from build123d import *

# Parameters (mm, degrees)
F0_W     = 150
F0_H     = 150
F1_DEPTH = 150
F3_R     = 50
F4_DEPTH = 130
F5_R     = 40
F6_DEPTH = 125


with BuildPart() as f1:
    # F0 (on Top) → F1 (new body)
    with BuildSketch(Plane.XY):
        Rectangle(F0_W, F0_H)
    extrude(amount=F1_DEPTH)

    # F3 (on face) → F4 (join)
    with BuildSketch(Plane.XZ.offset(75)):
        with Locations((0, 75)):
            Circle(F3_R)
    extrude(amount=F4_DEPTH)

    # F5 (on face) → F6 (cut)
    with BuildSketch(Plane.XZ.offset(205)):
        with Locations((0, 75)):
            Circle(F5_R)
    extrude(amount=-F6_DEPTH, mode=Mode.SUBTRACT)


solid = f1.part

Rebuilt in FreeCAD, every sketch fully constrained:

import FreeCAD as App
import Part
import Sketcher

V = App.Vector


def add_polygon(sketch, points):
    """Adds a closed chain of lines whose ends are joined by coincident constraints."""
    first, n = sketch.GeometryCount, len(points)
    for a, b in zip(points, points[1:] + points[:1]):
        sketch.addGeometry(Part.LineSegment(App.Vector(*a, 0), App.Vector(*b, 0)), False)
    for i in range(n):
        sketch.addConstraint(Sketcher.Constraint("Coincident", first + i, 2, first + (i + 1) % n, 1))

doc = App.newDocument("Part")
body = doc.addObject("PartDesign::Body", "Body")

# Sketch on XY plane
sketch1 = body.newObject("Sketcher::SketchObject", "Sketch")
sketch1.AttachmentSupport = (doc.getObject("XY_Plane"), [""])
sketch1.MapMode = "FlatFace"
add_polygon(sketch1, [(-75, 75), (-75, -75), (75, -75), (75, 75)])  # lines 0-3
sketch1.addConstraint([
    Sketcher.Constraint("Vertical", 0),
    Sketcher.Constraint("Horizontal", 1),
    Sketcher.Constraint("Vertical", 2),
    Sketcher.Constraint("Horizontal", 3),
    Sketcher.Constraint("Symmetric", 0, 2, 2, 2, -1, 1),
    Sketcher.Constraint("Equal", 3, 0),
    Sketcher.Constraint("DistanceX", 1, 1, 1, 2, 150.0),
])
pad1 = body.newObject("PartDesign::Pad", "Pad")
pad1.Profile = sketch1
pad1.Length = 150

# Sketch on XZ plane
sketch2 = body.newObject("Sketcher::SketchObject", "Sketch001")
sketch2.AttachmentSupport = (doc.getObject("XZ_Plane"), [""])
sketch2.MapMode = "FlatFace"
sketch2.AttachmentOffset = App.Placement(V(0, 0, 75), App.Rotation())
sketch2.addGeometry(Part.Circle(V(0, 75, 0), V(0, 0, 1), 50), False)
sketch2.addConstraint([
    Sketcher.Constraint("PointOnObject", 0, 3, -2),
    Sketcher.Constraint("Diameter", 0, 100.0),
    Sketcher.Constraint("DistanceY", -1, 1, 0, 3, 75.0),
])
pad2 = body.newObject("PartDesign::Pad", "Pad001")
pad2.Profile = sketch2
pad2.Length = 130

# Sketch on XZ plane
sketch3 = body.newObject("Sketcher::SketchObject", "Sketch002")
sketch3.AttachmentSupport = (doc.getObject("XZ_Plane"), [""])
sketch3.MapMode = "FlatFace"
sketch3.AttachmentOffset = App.Placement(V(0, 0, 205), App.Rotation())
sketch3.addGeometry(Part.Circle(V(0, 75, 0), V(0, 0, 1), 40), False)
sketch3.addConstraint([
    Sketcher.Constraint("PointOnObject", 0, 3, -2),
    Sketcher.Constraint("Diameter", 0, 80.0),
    Sketcher.Constraint("DistanceY", -1, 1, 0, 3, 75.0),
])
pocket1 = body.newObject("PartDesign::Pocket", "Pocket")
pocket1.Profile = sketch3
pocket1.Length = 125

doc.recompute()
